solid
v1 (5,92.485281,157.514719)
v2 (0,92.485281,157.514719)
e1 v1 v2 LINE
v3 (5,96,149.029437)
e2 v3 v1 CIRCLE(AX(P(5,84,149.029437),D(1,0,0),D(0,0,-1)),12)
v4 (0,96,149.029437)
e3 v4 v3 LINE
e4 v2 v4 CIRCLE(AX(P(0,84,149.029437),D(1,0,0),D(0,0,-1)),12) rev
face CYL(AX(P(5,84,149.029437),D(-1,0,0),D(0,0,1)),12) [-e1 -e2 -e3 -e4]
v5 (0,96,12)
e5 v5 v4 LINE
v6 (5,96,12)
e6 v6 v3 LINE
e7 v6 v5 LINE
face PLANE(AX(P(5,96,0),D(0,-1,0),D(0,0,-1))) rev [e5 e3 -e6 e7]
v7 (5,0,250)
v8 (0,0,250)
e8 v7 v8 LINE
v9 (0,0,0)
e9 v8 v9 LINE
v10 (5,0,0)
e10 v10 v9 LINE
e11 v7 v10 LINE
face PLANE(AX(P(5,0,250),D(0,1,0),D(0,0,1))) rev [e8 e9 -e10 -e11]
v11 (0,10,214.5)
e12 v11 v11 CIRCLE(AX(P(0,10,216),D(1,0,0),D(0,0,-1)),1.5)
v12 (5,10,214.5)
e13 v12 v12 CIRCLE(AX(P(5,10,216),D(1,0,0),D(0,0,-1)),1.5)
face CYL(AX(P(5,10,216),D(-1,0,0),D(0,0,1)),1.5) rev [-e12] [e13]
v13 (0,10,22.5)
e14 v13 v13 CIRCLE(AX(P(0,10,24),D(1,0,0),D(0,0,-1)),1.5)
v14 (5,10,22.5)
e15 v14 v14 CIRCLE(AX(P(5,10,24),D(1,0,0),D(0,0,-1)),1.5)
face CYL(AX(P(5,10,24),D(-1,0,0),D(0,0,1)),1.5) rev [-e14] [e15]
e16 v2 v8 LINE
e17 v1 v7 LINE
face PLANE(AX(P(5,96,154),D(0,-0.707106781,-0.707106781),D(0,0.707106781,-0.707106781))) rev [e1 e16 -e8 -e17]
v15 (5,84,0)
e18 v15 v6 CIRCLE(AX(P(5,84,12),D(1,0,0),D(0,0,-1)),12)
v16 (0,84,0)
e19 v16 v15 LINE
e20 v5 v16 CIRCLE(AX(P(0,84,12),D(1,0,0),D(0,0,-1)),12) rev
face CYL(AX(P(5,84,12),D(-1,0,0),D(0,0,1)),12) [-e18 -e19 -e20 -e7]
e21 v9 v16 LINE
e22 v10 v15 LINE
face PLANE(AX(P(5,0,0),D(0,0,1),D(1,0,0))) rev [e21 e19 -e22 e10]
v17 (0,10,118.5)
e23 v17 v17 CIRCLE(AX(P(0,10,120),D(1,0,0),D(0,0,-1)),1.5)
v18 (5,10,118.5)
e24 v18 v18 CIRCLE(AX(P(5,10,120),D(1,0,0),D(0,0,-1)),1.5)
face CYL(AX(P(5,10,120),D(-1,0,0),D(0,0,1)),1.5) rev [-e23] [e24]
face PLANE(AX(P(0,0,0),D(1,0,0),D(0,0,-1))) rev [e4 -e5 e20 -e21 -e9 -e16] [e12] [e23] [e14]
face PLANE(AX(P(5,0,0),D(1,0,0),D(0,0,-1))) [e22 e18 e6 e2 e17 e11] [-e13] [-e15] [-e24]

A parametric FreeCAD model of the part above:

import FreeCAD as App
import Part
import Sketcher

V = App.Vector
Q = App.Units.Quantity


def edges_at(feature, points):
    """Names of the edges that pass closest to the given points."""
    edges = feature.Shape.Edges
    near = lambda p: min(range(len(edges)), key=lambda i: edges[i].distToShape(Part.Vertex(*p))[0])
    return sorted({f"Edge{near(p) + 1}" for p in points})


def add_polygon(sketch, points):
    """Adds a closed chain of lines whose ends are joined by coincident constraints."""
    first, n = sketch.GeometryCount, len(points)
    for a, b in zip(points, points[1:] + points[:1]):
        sketch.addGeometry(Part.LineSegment(App.Vector(*a, 0), App.Vector(*b, 0)), False)
    for i in range(n):
        sketch.addConstraint(Sketcher.Constraint("Coincident", first + i, 2, first + (i + 1) % n, 1))

doc = App.newDocument("Part")
params = doc.addObject("Spreadsheet::Sheet", "Params")
for row, (alias, value) in enumerate([
    ("sketch1_diameter", "3 mm"),
    ("sketch1_width", "96 mm"),
    ("sketch1_height", "154 mm"),
    ("sketch1_height2", "250 mm"),
    ("pad1_length", "5 mm"),
    ("fillet_radius", "12 mm"),
], start=1):
    params.set(f"A{row}", alias)
    params.set(f"B{row}", "=" + value)
    params.setAlias(f"B{row}", alias)

body = doc.addObject("PartDesign::Body", "Body")

# Sketch on YZ plane
sketch1 = body.newObject("Sketcher::SketchObject", "Sketch")
sketch1.AttachmentSupport = (doc.getObject("YZ_Plane"), [""])
sketch1.MapMode = "FlatFace"
add_polygon(sketch1, [(0, 0), (96, 0), (96, 154), (0, 250)])  # lines 0-3
sketch1.addGeometry(Part.Circle(V(10, 216, 0), V(0, 0, 1), 1.5), False)  # 4
sketch1.addGeometry(Part.Circle(V(10, 120, 0), V(0, 0, 1), 1.5), False)  # 5
sketch1.addGeometry(Part.Circle(V(10, 24, 0), V(0, 0, 1), 1.5), False)  # 6
sketch1.addConstraint(Sketcher.Constraint("Horizontal", 0))
sketch1.addConstraint(Sketcher.Constraint("Vertical", 1))
sketch1.addConstraint(Sketcher.Constraint("Vertical", 3))
sketch1.addConstraint(Sketcher.Constraint("Coincident", 3, 2, -1, 1))
sketch1.addConstraint(Sketcher.Constraint("Equal", 4, 5))
sketch1.addConstraint(Sketcher.Constraint("Equal", 5, 6))
sketch1.addConstraint(Sketcher.Constraint("Vertical", 4, 3, 5, 3))
sketch1.addConstraint(Sketcher.Constraint("Vertical", 5, 3, 6, 3))
sketch1.addConstraint(Sketcher.Constraint("Diameter", 4, Q("3 mm")))
sketch1.addConstraint(Sketcher.Constraint("DistanceX", 0, 1, 0, 2, Q("96 mm")))
sketch1.addConstraint(Sketcher.Constraint("DistanceY", 1, 1, 1, 2, Q("154 mm")))
sketch1.addConstraint(Sketcher.Constraint("DistanceY", 3, 2, 3, 1, Q("250 mm")))
sketch1.addConstraint(Sketcher.Constraint("DistanceX", -1, 1, 4, 3, Q("10 mm")))
sketch1.addConstraint(Sketcher.Constraint("DistanceY", -1, 1, 4, 3, Q("216 mm")))
sketch1.addConstraint(Sketcher.Constraint("DistanceY", -1, 1, 5, 3, Q("120 mm")))
sketch1.addConstraint(Sketcher.Constraint("DistanceY", -1, 1, 6, 3, Q("24 mm")))
sketch1.setExpression("Constraints[12]", "Params.sketch1_diameter")
sketch1.setExpression("Constraints[13]", "Params.sketch1_width")
sketch1.setExpression("Constraints[14]", "Params.sketch1_height")
sketch1.setExpression("Constraints[15]", "Params.sketch1_height2")
pad1 = body.newObject("PartDesign::Pad", "Pad")
pad1.Profile = sketch1
pad1.setExpression("Length", "Params.pad1_length")
doc.recompute()

fillet = body.newObject("PartDesign::Fillet", "Fillet")
fillet.Base = (pad1, edges_at(pad1, [(2.5, 96, 154), (2.5, 96, 0)]))
fillet.setExpression("Radius", "Params.fillet_radius")

doc.recompute()
